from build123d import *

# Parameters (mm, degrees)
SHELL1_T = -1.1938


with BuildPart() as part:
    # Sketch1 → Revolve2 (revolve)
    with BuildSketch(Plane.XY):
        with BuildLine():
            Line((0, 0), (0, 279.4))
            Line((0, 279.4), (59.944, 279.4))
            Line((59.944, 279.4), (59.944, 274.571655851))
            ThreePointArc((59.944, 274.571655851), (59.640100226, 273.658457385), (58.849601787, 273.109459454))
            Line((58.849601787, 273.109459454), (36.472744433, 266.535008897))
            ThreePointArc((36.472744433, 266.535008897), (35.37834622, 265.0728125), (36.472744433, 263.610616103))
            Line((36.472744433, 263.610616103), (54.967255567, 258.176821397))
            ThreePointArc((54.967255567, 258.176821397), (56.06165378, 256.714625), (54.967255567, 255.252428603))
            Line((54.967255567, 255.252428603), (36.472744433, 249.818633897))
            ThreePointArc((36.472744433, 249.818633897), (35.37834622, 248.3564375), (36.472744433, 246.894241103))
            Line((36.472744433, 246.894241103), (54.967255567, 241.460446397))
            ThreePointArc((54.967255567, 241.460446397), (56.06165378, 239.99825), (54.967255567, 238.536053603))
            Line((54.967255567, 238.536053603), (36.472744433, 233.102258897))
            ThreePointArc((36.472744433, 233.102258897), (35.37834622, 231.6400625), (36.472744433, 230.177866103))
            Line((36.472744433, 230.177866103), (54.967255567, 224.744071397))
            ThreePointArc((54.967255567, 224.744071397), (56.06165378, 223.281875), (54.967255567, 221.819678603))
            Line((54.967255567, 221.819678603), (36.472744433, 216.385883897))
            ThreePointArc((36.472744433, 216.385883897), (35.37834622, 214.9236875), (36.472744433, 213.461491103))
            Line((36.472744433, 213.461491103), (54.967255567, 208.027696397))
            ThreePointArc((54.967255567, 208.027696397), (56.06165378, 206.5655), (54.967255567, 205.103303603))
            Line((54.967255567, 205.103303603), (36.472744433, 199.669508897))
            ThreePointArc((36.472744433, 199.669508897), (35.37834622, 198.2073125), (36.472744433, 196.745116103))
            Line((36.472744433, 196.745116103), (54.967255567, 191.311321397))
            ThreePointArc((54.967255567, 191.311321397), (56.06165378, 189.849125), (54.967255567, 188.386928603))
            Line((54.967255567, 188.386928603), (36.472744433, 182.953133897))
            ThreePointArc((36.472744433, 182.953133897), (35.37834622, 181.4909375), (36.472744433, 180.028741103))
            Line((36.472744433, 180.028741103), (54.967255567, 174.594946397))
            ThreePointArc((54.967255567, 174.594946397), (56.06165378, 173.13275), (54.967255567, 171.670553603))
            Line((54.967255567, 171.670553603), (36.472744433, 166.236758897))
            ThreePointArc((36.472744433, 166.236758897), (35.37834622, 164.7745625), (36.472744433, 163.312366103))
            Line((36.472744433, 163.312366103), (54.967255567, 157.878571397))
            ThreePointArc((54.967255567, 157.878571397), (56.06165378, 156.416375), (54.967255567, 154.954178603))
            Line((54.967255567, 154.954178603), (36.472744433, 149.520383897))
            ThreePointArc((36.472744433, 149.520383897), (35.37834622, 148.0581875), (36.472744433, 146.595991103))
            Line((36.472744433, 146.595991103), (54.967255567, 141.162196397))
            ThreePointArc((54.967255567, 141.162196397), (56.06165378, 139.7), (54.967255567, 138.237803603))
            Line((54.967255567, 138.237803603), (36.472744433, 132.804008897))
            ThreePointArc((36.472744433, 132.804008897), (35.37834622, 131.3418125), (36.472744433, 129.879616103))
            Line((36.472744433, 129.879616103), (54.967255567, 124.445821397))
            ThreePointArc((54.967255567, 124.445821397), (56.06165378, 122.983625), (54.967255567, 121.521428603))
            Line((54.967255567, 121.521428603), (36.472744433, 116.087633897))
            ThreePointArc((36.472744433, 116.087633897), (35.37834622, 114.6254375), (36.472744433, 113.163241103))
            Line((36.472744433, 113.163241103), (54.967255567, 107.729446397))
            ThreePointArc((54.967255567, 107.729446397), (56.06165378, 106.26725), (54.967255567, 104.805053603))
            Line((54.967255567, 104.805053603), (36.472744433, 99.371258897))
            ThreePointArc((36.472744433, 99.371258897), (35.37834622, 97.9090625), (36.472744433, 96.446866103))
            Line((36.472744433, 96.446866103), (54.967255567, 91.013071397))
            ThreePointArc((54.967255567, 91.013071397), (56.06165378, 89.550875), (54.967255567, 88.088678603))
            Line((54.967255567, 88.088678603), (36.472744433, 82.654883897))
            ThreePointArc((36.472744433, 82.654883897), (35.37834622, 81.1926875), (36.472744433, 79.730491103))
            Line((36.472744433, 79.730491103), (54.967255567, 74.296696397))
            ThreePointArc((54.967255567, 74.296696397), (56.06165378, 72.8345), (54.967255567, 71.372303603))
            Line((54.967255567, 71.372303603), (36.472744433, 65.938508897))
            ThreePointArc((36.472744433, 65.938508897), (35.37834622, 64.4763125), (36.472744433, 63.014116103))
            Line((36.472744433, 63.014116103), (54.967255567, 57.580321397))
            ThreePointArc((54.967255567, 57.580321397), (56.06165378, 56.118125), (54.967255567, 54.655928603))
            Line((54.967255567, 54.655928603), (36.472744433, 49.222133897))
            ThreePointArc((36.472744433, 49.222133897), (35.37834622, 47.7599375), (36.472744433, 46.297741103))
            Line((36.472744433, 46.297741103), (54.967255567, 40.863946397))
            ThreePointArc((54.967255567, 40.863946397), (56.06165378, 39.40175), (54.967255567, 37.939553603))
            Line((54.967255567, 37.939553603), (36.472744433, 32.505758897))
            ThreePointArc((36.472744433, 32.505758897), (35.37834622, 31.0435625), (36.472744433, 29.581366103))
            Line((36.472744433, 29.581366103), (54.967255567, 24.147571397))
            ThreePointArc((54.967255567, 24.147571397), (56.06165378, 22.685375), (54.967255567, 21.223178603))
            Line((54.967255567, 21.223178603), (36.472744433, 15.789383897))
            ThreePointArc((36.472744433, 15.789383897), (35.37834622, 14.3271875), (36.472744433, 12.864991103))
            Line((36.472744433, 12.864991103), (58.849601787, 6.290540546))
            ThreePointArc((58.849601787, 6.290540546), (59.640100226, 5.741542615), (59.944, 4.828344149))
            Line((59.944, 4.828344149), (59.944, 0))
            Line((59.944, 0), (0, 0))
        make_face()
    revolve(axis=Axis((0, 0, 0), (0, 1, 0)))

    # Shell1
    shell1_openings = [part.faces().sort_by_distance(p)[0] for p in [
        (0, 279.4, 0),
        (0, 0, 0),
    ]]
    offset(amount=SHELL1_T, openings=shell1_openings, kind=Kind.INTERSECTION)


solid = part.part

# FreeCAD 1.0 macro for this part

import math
import FreeCAD as App
import Part
import Sketcher
Q = App.Units.Quantity


def faces_at(feature, points):
    """Names of the faces that lie closest to the given points."""
    faces = feature.Shape.Faces
    near = lambda p: min(range(len(faces)), key=lambda i: faces[i].distToShape(Part.Vertex(*p))[0])
    return sorted({f"Face{near(p) + 1}" for p in points})

doc = App.newDocument("Part")
body = doc.addObject("PartDesign::Body", "Body")

sketch1 = doc.addObject("Sketcher::SketchObject", "Sketch")
body.addObject(sketch1)
sketch1.AttachmentSupport = (doc.XY_Plane, [""])
sketch1.MapMode = "FlatFace"
sketch1.addGeometry(Part.LineSegment(App.Vector(0, 279.4, 0), App.Vector(0, 0, 0)), False)
sketch1.addGeometry(Part.LineSegment(App.Vector(0, 0, 0), App.Vector(59.9, 0, 0)), False)
sketch1.addGeometry(Part.LineSegment(App.Vector(59.9, 0, 0), App.Vector(59.9, 4.8, 0)), False)
sketch1.addGeometry(Part.ArcOfCircle(Part.Circle(App.Vector(58.4, 4.8, 0), App.Vector(0, 0, 1), 1.5), math.radians(0), math.radians(74)), False)
sketch1.addGeometry(Part.LineSegment(App.Vector(58.8, 6.3, 0), App.Vector(36.5, 12.9, 0)), False)
sketch1.addGeometry(Part.ArcOfCircle(Part.Circle(App.Vector(36.9, 14.3, 0), App.Vector(0, 0, 1), 1.5), math.radians(106), math.radians(254)), False)
sketch1.addGeometry(Part.LineSegment(App.Vector(36.5, 15.8, 0), App.Vector(55, 21.2, 0)), False)
sketch1.addGeometry(Part.ArcOfCircle(Part.Circle(App.Vector(54.5, 22.7, 0), App.Vector(0, 0, 1), 1.5), math.radians(-74), math.radians(74)), False)
sketch1.addGeometry(Part.LineSegment(App.Vector(55, 24.1, 0), App.Vector(36.5, 29.6, 0)), False)
sketch1.addGeometry(Part.ArcOfCircle(Part.Circle(App.Vector(36.9, 31, 0), App.Vector(0, 0, 1), 1.5), math.radians(106), math.radians(254)), False)
sketch1.addGeometry(Part.LineSegment(App.Vector(36.5, 32.5, 0), App.Vector(55, 37.9, 0)), False)
sketch1.addGeometry(Part.ArcOfCircle(Part.Circle(App.Vector(54.5, 39.4, 0), App.Vector(0, 0, 1), 1.5), math.radians(-74), math.radians(74)), False)
sketch1.addGeometry(Part.LineSegment(App.Vector(55, 40.9, 0), App.Vector(36.5, 46.3, 0)), False)
sketch1.addGeometry(Part.ArcOfCircle(Part.Circle(App.Vector(36.9, 47.8, 0), App.Vector(0, 0, 1), 1.5), math.radians(106), math.radians(254)), False)
sketch1.addGeometry(Part.LineSegment(App.Vector(36.5, 49.2, 0), App.Vector(55, 54.7, 0)), False)
sketch1.addGeometry(Part.ArcOfCircle(Part.Circle(App.Vector(54.5, 56.1, 0), App.Vector(0, 0, 1), 1.5), math.radians(-74), math.radians(74)), False)
sketch1.addGeometry(Part.LineSegment(App.Vector(55, 57.6, 0), App.Vector(36.5, 63, 0)), False)
sketch1.addGeometry(Part.ArcOfCircle(Part.Circle(App.Vector(36.9, 64.5, 0), App.Vector(0, 0, 1), 1.5), math.radians(106), math.radians(254)), False)
sketch1.addGeometry(Part.LineSegment(App.Vector(36.5, 65.9, 0), App.Vector(55, 71.4, 0)), False)
sketch1.addGeometry(Part.ArcOfCircle(Part.Circle(App.Vector(54.5, 72.8, 0), App.Vector(0, 0, 1), 1.5), math.radians(-74), math.radians(74)), False)
sketch1.addGeometry(Part.LineSegment(App.Vector(55, 74.3, 0), App.Vector(36.5, 79.7, 0)), False)
sketch1.addGeometry(Part.ArcOfCircle(Part.Circle(App.Vector(36.9, 81.2, 0), App.Vector(0, 0, 1), 1.5), math.radians(106), math.radians(254)), False)
sketch1.addGeometry(Part.LineSegment(App.Vector(36.5, 82.7, 0), App.Vector(55, 88.1, 0)), False)
sketch1.addGeometry(Part.ArcOfCircle(Part.Circle(App.Vector(54.5, 89.6, 0), App.Vector(0, 0, 1), 1.5), math.radians(-74), math.radians(74)), False)
sketch1.addGeometry(Part.LineSegment(App.Vector(55, 91, 0), App.Vector(36.5, 96.4, 0)), False)
sketch1.addGeometry(Part.ArcOfCircle(Part.Circle(App.Vector(36.9, 97.9, 0), App.Vector(0, 0, 1), 1.5), math.radians(106), math.radians(254)), False)
sketch1.addGeometry(Part.LineSegment(App.Vector(36.5, 99.4, 0), App.Vector(55, 104.8, 0)), False)
sketch1.addGeometry(Part.ArcOfCircle(Part.Circle(App.Vector(54.5, 106.3, 0), App.Vector(0, 0, 1), 1.5), math.radians(-74), math.radians(74)), False)
sketch1.addGeometry(Part.LineSegment(App.Vector(55, 107.7, 0), App.Vector(36.5, 113.2, 0)), False)
sketch1.addGeometry(Part.ArcOfCircle(Part.Circle(App.Vector(36.9, 114.6, 0), App.Vector(0, 0, 1), 1.5), math.radians(106), math.radians(254)), False)
sketch1.addGeometry(Part.LineSegment(App.Vector(36.5, 116.1, 0), App.Vector(55, 121.5, 0)), False)
sketch1.addGeometry(Part.ArcOfCircle(Part.Circle(App.Vector(54.5, 123, 0), App.Vector(0, 0, 1), 1.5), math.radians(-74), math.radians(74)), False)
sketch1.addGeometry(Part.LineSegment(App.Vector(55, 124.4, 0), App.Vector(36.5, 129.9, 0)), False)
sketch1.addGeometry(Part.ArcOfCircle(Part.Circle(App.Vector(36.9, 131.3, 0), App.Vector(0, 0, 1), 1.5), math.radians(106), math.radians(254)), False)
sketch1.addGeometry(Part.LineSegment(App.Vector(36.5, 132.8, 0), App.Vector(55, 138.2, 0)), False)
sketch1.addGeometry(Part.ArcOfCircle(Part.Circle(App.Vector(54.5, 139.7, 0), App.Vector(0, 0, 1), 1.5), math.radians(-74), math.radians(74)), False)
sketch1.addGeometry(Part.LineSegment(App.Vector(55, 141.2, 0), App.Vector(36.5, 146.6, 0)), False)
sketch1.addGeometry(Part.ArcOfCircle(Part.Circle(App.Vector(36.9, 148.1, 0), App.Vector(0, 0, 1), 1.5), math.radians(106), math.radians(254)), False)
sketch1.addGeometry(Part.LineSegment(App.Vector(36.5, 149.5, 0), App.Vector(55, 155, 0)), False)
sketch1.addGeometry(Part.ArcOfCircle(Part.Circle(App.Vector(54.5, 156.4, 0), App.Vector(0, 0, 1), 1.5), math.radians(-74), math.radians(74)), False)
sketch1.addGeometry(Part.LineSegment(App.Vector(55, 157.9, 0), App.Vector(36.5, 163.3, 0)), False)
sketch1.addGeometry(Part.ArcOfCircle(Part.Circle(App.Vector(36.9, 164.8, 0), App.Vector(0, 0, 1), 1.5), math.radians(106), math.radians(254)), False)
sketch1.addGeometry(Part.LineSegment(App.Vector(36.5, 166.2, 0), App.Vector(55, 171.7, 0)), False)
sketch1.addGeometry(Part.ArcOfCircle(Part.Circle(App.Vector(54.5, 173.1, 0), App.Vector(0, 0, 1), 1.5), math.radians(-74), math.radians(74)), False)
sketch1.addGeometry(Part.LineSegment(App.Vector(55, 174.6, 0), App.Vector(36.5, 180, 0)), False)
sketch1.addGeometry(Part.ArcOfCircle(Part.Circle(App.Vector(36.9, 181.5, 0), App.Vector(0, 0, 1), 1.5), math.radians(106), math.radians(254)), False)
sketch1.addGeometry(Part.LineSegment(App.Vector(36.5, 183, 0), App.Vector(55, 188.4, 0)), False)
sketch1.addGeometry(Part.ArcOfCircle(Part.Circle(App.Vector(54.5, 189.8, 0), App.Vector(0, 0, 1), 1.5), math.radians(-74), math.radians(74)), False)
sketch1.addGeometry(Part.LineSegment(App.Vector(55, 191.3, 0), App.Vector(36.5, 196.7, 0)), False)
sketch1.addGeometry(Part.ArcOfCircle(Part.Circle(App.Vector(36.9, 198.2, 0), App.Vector(0, 0, 1), 1.5), math.radians(106), math.radians(254)), False)
sketch1.addGeometry(Part.LineSegment(App.Vector(36.5, 199.7, 0), App.Vector(55, 205.1, 0)), False)
sketch1.addGeometry(Part.ArcOfCircle(Part.Circle(App.Vector(54.5, 206.6, 0), App.Vector(0, 0, 1), 1.5), math.radians(-74), math.radians(74)), False)
sketch1.addGeometry(Part.LineSegment(App.Vector(55, 208, 0), App.Vector(36.5, 213.5, 0)), False)
sketch1.addGeometry(Part.ArcOfCircle(Part.Circle(App.Vector(36.9, 214.9, 0), App.Vector(0, 0, 1), 1.5), math.radians(106), math.radians(254)), False)
sketch1.addGeometry(Part.LineSegment(App.Vector(36.5, 216.4, 0), App.Vector(55, 221.8, 0)), False)
sketch1.addGeometry(Part.ArcOfCircle(Part.Circle(App.Vector(54.5, 223.3, 0), App.Vector(0, 0, 1), 1.5), math.radians(-74), math.radians(74)), False)
sketch1.addGeometry(Part.LineSegment(App.Vector(55, 224.7, 0), App.Vector(36.5, 230.2, 0)), False)
sketch1.addGeometry(Part.ArcOfCircle(Part.Circle(App.Vector(36.9, 231.6, 0), App.Vector(0, 0, 1), 1.5), math.radians(106), math.radians(254)), False)
sketch1.addGeometry(Part.LineSegment(App.Vector(36.5, 233.1, 0), App.Vector(55, 238.5, 0)), False)
sketch1.addGeometry(Part.ArcOfCircle(Part.Circle(App.Vector(54.5, 240, 0), App.Vector(0, 0, 1), 1.5), math.radians(-74), math.radians(74)), False)
sketch1.addGeometry(Part.LineSegment(App.Vector(55, 241.5, 0), App.Vector(36.5, 246.9, 0)), False)
sketch1.addGeometry(Part.ArcOfCircle(Part.Circle(App.Vector(36.9, 248.4, 0), App.Vector(0, 0, 1), 1.5), math.radians(106), math.radians(254)), False)
sketch1.addGeometry(Part.LineSegment(App.Vector(36.5, 249.8, 0), App.Vector(55, 255.3, 0)), False)
sketch1.addGeometry(Part.ArcOfCircle(Part.Circle(App.Vector(54.5, 256.7, 0), App.Vector(0, 0, 1), 1.5), math.radians(-74), math.radians(74)), False)
sketch1.addGeometry(Part.LineSegment(App.Vector(55, 258.2, 0), App.Vector(36.5, 263.6, 0)), False)
sketch1.addGeometry(Part.ArcOfCircle(Part.Circle(App.Vector(36.9, 265.1, 0), App.Vector(0, 0, 1), 1.5), math.radians(106), math.radians(254)), False)
sketch1.addGeometry(Part.LineSegment(App.Vector(36.5, 266.5, 0), App.Vector(58.8, 273.1, 0)), False)
sketch1.addGeometry(Part.ArcOfCircle(Part.Circle(App.Vector(58.4, 274.6, 0), App.Vector(0, 0, 1), 1.5), math.radians(-74), math.radians(0)), False)
sketch1.addGeometry(Part.LineSegment(App.Vector(59.9, 274.6, 0), App.Vector(59.9, 279.4, 0)), False)
sketch1.addGeometry(Part.LineSegment(App.Vector(59.9, 279.4, 0), App.Vector(0, 279.4, 0)), False)
sketch1.addConstraint(Sketcher.Constraint("Coincident", 0, 2, 1, 1))
sketch1.addConstraint(Sketcher.Constraint("Coincident", 1, 2, 2, 1))
sketch1.addConstraint(Sketcher.Constraint("Tangent", 2, 2, 3, 1))
sketch1.addConstraint(Sketcher.Constraint("Tangent", 3, 2, 4, 1))
sketch1.addConstraint(Sketcher.Constraint("Tangent", 4, 2, 5, 2))
sketch1.addConstraint(Sketcher.Constraint("Tangent", 5, 1, 6, 1))
sketch1.addConstraint(Sketcher.Constraint("Tangent", 6, 2, 7, 1))
sketch1.addConstraint(Sketcher.Constraint("Tangent", 7, 2, 8, 1))
sketch1.addConstraint(Sketcher.Constraint("Tangent", 8, 2, 9, 2))
sketch1.addConstraint(Sketcher.Constraint("Tangent", 9, 1, 10, 1))
sketch1.addConstraint(Sketcher.Constraint("Tangent", 10, 2, 11, 1))
sketch1.addConstraint(Sketcher.Constraint("Tangent", 11, 2, 12, 1))
sketch1.addConstraint(Sketcher.Constraint("Tangent", 12, 2, 13, 2))
sketch1.addConstraint(Sketcher.Constraint("Tangent", 13, 1, 14, 1))
sketch1.addConstraint(Sketcher.Constraint("Tangent", 14, 2, 15, 1))
sketch1.addConstraint(Sketcher.Constraint("Tangent", 15, 2, 16, 1))
sketch1.addConstraint(Sketcher.Constraint("Tangent", 16, 2, 17, 2))
sketch1.addConstraint(Sketcher.Constraint("Tangent", 17, 1, 18, 1))
sketch1.addConstraint(Sketcher.Constraint("Tangent", 18, 2, 19, 1))
sketch1.addConstraint(Sketcher.Constraint("Tangent", 19, 2, 20, 1))
sketch1.addConstraint(Sketcher.Constraint("Tangent", 20, 2, 21, 2))
sketch1.addConstraint(Sketcher.Constraint("Tangent", 21, 1, 22, 1))
sketch1.addConstraint(Sketcher.Constraint("Tangent", 22, 2, 23, 1))
sketch1.addConstraint(Sketcher.Constraint("Tangent", 23, 2, 24, 1))
sketch1.addConstraint(Sketcher.Constraint("Tangent", 24, 2, 25, 2))
sketch1.addConstraint(Sketcher.Constraint("Tangent", 25, 1, 26, 1))
sketch1.addConstraint(Sketcher.Constraint("Tangent", 26, 2, 27, 1))
sketch1.addConstraint(Sketcher.Constraint("Tangent", 27, 2, 28, 1))
sketch1.addConstraint(Sketcher.Constraint("Tangent", 28, 2, 29, 2))
sketch1.addConstraint(Sketcher.Constraint("Tangent", 29, 1, 30, 1))
sketch1.addConstraint(Sketcher.Constraint("Tangent", 30, 2, 31, 1))
sketch1.addConstraint(Sketcher.Constraint("Tangent", 31, 2, 32, 1))
sketch1.addConstraint(Sketcher.Constraint("Tangent", 32, 2, 33, 2))
sketch1.addConstraint(Sketcher.Constraint("Tangent", 33, 1, 34, 1))
sketch1.addConstraint(Sketcher.Constraint("Tangent", 34, 2, 35, 1))
sketch1.addConstraint(Sketcher.Constraint("Tangent", 35, 2, 36, 1))
sketch1.addConstraint(Sketcher.Constraint("Tangent", 36, 2, 37, 2))
sketch1.addConstraint(Sketcher.Constraint("Tangent", 37, 1, 38, 1))
sketch1.addConstraint(Sketcher.Constraint("Tangent", 38, 2, 39, 1))
sketch1.addConstraint(Sketcher.Constraint("Tangent", 39, 2, 40, 1))
sketch1.addConstraint(Sketcher.Constraint("Tangent", 40, 2, 41, 2))
sketch1.addConstraint(Sketcher.Constraint("Tangent", 41, 1, 42, 1))
sketch1.addConstraint(Sketcher.Constraint("Tangent", 42, 2, 43, 1))
sketch1.addConstraint(Sketcher.Constraint("Tangent", 43, 2, 44, 1))
sketch1.addConstraint(Sketcher.Constraint("Tangent", 44, 2, 45, 2))
sketch1.addConstraint(Sketcher.Constraint("Tangent", 45, 1, 46, 1))
sketch1.addConstraint(Sketcher.Constraint("Tangent", 46, 2, 47, 1))
sketch1.addConstraint(Sketcher.Constraint("Tangent", 47, 2, 48, 1))
sketch1.addConstraint(Sketcher.Constraint("Tangent", 48, 2, 49, 2))
sketch1.addConstraint(Sketcher.Constraint("Tangent", 49, 1, 50, 1))
sketch1.addConstraint(Sketcher.Constraint("Tangent", 50, 2, 51, 1))
sketch1.addConstraint(Sketcher.Constraint("Tangent", 51, 2, 52, 1))
sketch1.addConstraint(Sketcher.Constraint("Tangent", 52, 2, 53, 2))
sketch1.addConstraint(Sketcher.Constraint("Tangent", 53, 1, 54, 1))
sketch1.addConstraint(Sketcher.Constraint("Tangent", 54, 2, 55, 1))
sketch1.addConstraint(Sketcher.Constraint("Tangent", 55, 2, 56, 1))
sketch1.addConstraint(Sketcher.Constraint("Tangent", 56, 2, 57, 2))
sketch1.addConstraint(Sketcher.Constraint("Tangent", 57, 1, 58, 1))
sketch1.addConstraint(Sketcher.Constraint("Tangent", 58, 2, 59, 1))
sketch1.addConstraint(Sketcher.Constraint("Tangent", 59, 2, 60, 1))
sketch1.addConstraint(Sketcher.Constraint("Tangent", 60, 2, 61, 2))
sketch1.addConstraint(Sketcher.Constraint("Tangent", 61, 1, 62, 1))
sketch1.addConstraint(Sketcher.Constraint("Tangent", 62, 2, 63, 1))
sketch1.addConstraint(Sketcher.Constraint("Tangent", 63, 2, 64, 1))
sketch1.addConstraint(Sketcher.Constraint("Tangent", 64, 2, 65, 2))
sketch1.addConstraint(Sketcher.Constraint("Tangent", 65, 1, 66, 1))
sketch1.addConstraint(Sketcher.Constraint("Tangent", 66, 2, 67, 1))
sketch1.addConstraint(Sketcher.Constraint("Tangent", 67, 2, 68, 1))
sketch1.addConstraint(Sketcher.Constraint("Coincident", 68, 2, 69, 1))
sketch1.addConstraint(Sketcher.Constraint("Coincident", 69, 2, 0, 1))
sketch1.addConstraint(Sketcher.Constraint("Vertical", 0))
sketch1.addConstraint(Sketcher.Constraint("Horizontal", 1))
sketch1.addConstraint(Sketcher.Constraint("Vertical", 2))
sketch1.addConstraint(Sketcher.Constraint("Vertical", 68))
sketch1.addConstraint(Sketcher.Constraint("Horizontal", 69))
sketch1.addConstraint(Sketcher.Constraint("Coincident", 0, 2, -1, 1))
sketch1.addConstraint(Sketcher.Constraint("Equal", 3, 5))
sketch1.addConstraint(Sketcher.Constraint("Equal", 5, 7))
sketch1.addConstraint(Sketcher.Constraint("Equal", 7, 9))
sketch1.addConstraint(Sketcher.Constraint("Equal", 9, 11))
sketch1.addConstraint(Sketcher.Constraint("Equal", 11, 13))
sketch1.addConstraint(Sketcher.Constraint("Equal", 13, 15))
sketch1.addConstraint(Sketcher.Constraint("Equal", 15, 17))
sketch1.addConstraint(Sketcher.Constraint("Equal", 17, 19))
sketch1.addConstraint(Sketcher.Constraint("Equal", 19, 21))
sketch1.addConstraint(Sketcher.Constraint("Equal", 21, 23))
sketch1.addConstraint(Sketcher.Constraint("Equal", 23, 25))
sketch1.addConstraint(Sketcher.Constraint("Equal", 25, 27))
sketch1.addConstraint(Sketcher.Constraint("Equal", 27, 29))
sketch1.addConstraint(Sketcher.Constraint("Equal", 29, 31))
sketch1.addConstraint(Sketcher.Constraint("Equal", 31, 33))
sketch1.addConstraint(Sketcher.Constraint("Equal", 33, 35))
sketch1.addConstraint(Sketcher.Constraint("Equal", 35, 37))
sketch1.addConstraint(Sketcher.Constraint("Equal", 37, 39))
sketch1.addConstraint(Sketcher.Constraint("Equal", 39, 41))
sketch1.addConstraint(Sketcher.Constraint("Equal", 41, 43))
sketch1.addConstraint(Sketcher.Constraint("Equal", 43, 45))
sketch1.addConstraint(Sketcher.Constraint("Equal", 45, 47))
sketch1.addConstraint(Sketcher.Constraint("Equal", 47, 49))
sketch1.addConstraint(Sketcher.Constraint("Equal", 49, 51))
sketch1.addConstraint(Sketcher.Constraint("Equal", 51, 53))
sketch1.addConstraint(Sketcher.Constraint("Equal", 53, 55))
sketch1.addConstraint(Sketcher.Constraint("Equal", 55, 57))
sketch1.addConstraint(Sketcher.Constraint("Equal", 57, 59))
sketch1.addConstraint(Sketcher.Constraint("Equal", 59, 61))
sketch1.addConstraint(Sketcher.Constraint("Equal", 61, 63))
sketch1.addConstraint(Sketcher.Constraint("Equal", 63, 65))
sketch1.addConstraint(Sketcher.Constraint("Equal", 65, 67))
sketch1.addConstraint(Sketcher.Constraint("Parallel", 4, 8))
sketch1.addConstraint(Sketcher.Constraint("Parallel", 6, 10))
sketch1.addConstraint(Sketcher.Constraint("Parallel", 8, 12))
sketch1.addConstraint(Sketcher.Constraint("Parallel", 10, 14))
sketch1.addConstraint(Sketcher.Constraint("Parallel", 12, 16))
sketch1.addConstraint(Sketcher.Constraint("Parallel", 14, 18))
sketch1.addConstraint(Sketcher.Constraint("Parallel", 16, 20))
sketch1.addConstraint(Sketcher.Constraint("Parallel", 18, 22))
sketch1.addConstraint(Sketcher.Constraint("Parallel", 20, 24))
sketch1.addConstraint(Sketcher.Constraint("Parallel", 22, 26))
sketch1.addConstraint(Sketcher.Constraint("Parallel", 24, 28))
sketch1.addConstraint(Sketcher.Constraint("Parallel", 26, 30))
sketch1.addConstraint(Sketcher.Constraint("Parallel", 28, 32))
sketch1.addConstraint(Sketcher.Constraint("Parallel", 30, 34))
sketch1.addConstraint(Sketcher.Constraint("Parallel", 32, 36))
sketch1.addConstraint(Sketcher.Constraint("Parallel", 34, 38))
sketch1.addConstraint(Sketcher.Constraint("Parallel", 36, 40))
sketch1.addConstraint(Sketcher.Constraint("Parallel", 38, 42))
sketch1.addConstraint(Sketcher.Constraint("Parallel", 40, 44))
sketch1.addConstraint(Sketcher.Constraint("Parallel", 42, 46))
sketch1.addConstraint(Sketcher.Constraint("Parallel", 44, 48))
sketch1.addConstraint(Sketcher.Constraint("Parallel", 46, 50))
sketch1.addConstraint(Sketcher.Constraint("Parallel", 48, 52))
sketch1.addConstraint(Sketcher.Constraint("Parallel", 50, 54))
sketch1.addConstraint(Sketcher.Constraint("Parallel", 52, 56))
sketch1.addConstraint(Sketcher.Constraint("Parallel", 54, 58))
sketch1.addConstraint(Sketcher.Constraint("Parallel", 56, 60))
sketch1.addConstraint(Sketcher.Constraint("Parallel", 58, 62))
sketch1.addConstraint(Sketcher.Constraint("Parallel", 60, 64))
sketch1.addConstraint(Sketcher.Constraint("Parallel", 62, 66))
sketch1.addConstraint(Sketcher.Constraint("Vertical", 5, 3, 9, 3))
sketch1.addConstraint(Sketcher.Constraint("Vertical", 7, 3, 11, 3))
sketch1.addConstraint(Sketcher.Constraint("Vertical", 9, 3, 13, 3))
sketch1.addConstraint(Sketcher.Constraint("Vertical", 11, 3, 15, 3))
sketch1.addConstraint(Sketcher.Constraint("Vertical", 13, 3, 17, 3))
sketch1.addConstraint(Sketcher.Constraint("Vertical", 15, 3, 19, 3))
sketch1.addConstraint(Sketcher.Constraint("Vertical", 17, 3, 21, 3))
sketch1.addConstraint(Sketcher.Constraint("Vertical", 19, 3, 23, 3))
sketch1.addConstraint(Sketcher.Constraint("Vertical", 21, 3, 25, 3))
sketch1.addConstraint(Sketcher.Constraint("Vertical", 23, 3, 27, 3))
sketch1.addConstraint(Sketcher.Constraint("Vertical", 25, 3, 29, 3))
sketch1.addConstraint(Sketcher.Constraint("Vertical", 27, 3, 31, 3))
sketch1.addConstraint(Sketcher.Constraint("Vertical", 29, 3, 33, 3))
sketch1.addConstraint(Sketcher.Constraint("Vertical", 31, 3, 35, 3))
sketch1.addConstraint(Sketcher.Constraint("Vertical", 33, 3, 37, 3))
sketch1.addConstraint(Sketcher.Constraint("Vertical", 35, 3, 39, 3))
sketch1.addConstraint(Sketcher.Constraint("Vertical", 37, 3, 41, 3))
sketch1.addConstraint(Sketcher.Constraint("Vertical", 39, 3, 43, 3))
sketch1.addConstraint(Sketcher.Constraint("Vertical", 41, 3, 45, 3))
sketch1.addConstraint(Sketcher.Constraint("Vertical", 43, 3, 47, 3))
sketch1.addConstraint(Sketcher.Constraint("Vertical", 45, 3, 49, 3))
sketch1.addConstraint(Sketcher.Constraint("Vertical", 47, 3, 51, 3))
sketch1.addConstraint(Sketcher.Constraint("Vertical", 49, 3, 53, 3))
sketch1.addConstraint(Sketcher.Constraint("Vertical", 51, 3, 55, 3))
sketch1.addConstraint(Sketcher.Constraint("Vertical", 53, 3, 57, 3))
sketch1.addConstraint(Sketcher.Constraint("Vertical", 55, 3, 59, 3))
sketch1.addConstraint(Sketcher.Constraint("Vertical", 57, 3, 61, 3))
sketch1.addConstraint(Sketcher.Constraint("Vertical", 59, 3, 63, 3))
sketch1.addConstraint(Sketcher.Constraint("Vertical", 61, 3, 65, 3))
sketch1.addConstraint(Sketcher.Constraint("Vertical", 3, 3, 67, 3))
sketch1.addConstraint(Sketcher.Constraint("Vertical", 4, 2, 5, 1))
sketch1.addConstraint(Sketcher.Constraint("Equal", 2, 68))
sketch1.addConstraint(Sketcher.Constraint("DistanceY", 0, 2, 0, 1, Q("11 in")))
sketch1.addConstraint(Sketcher.Constraint("Radius", 3, Q("0.06 in")))
sketch1.addConstraint(Sketcher.Constraint("DistanceX", 1, 1, 1, 2, Q("2.36 in")))
sketch1.addConstraint(Sketcher.Constraint("DistanceY", -1, 1, 19, 3, Q("2.8675 in")))
sketch1.addConstraint(Sketcher.Constraint("DistanceX", -1, 1, 3, 2, 58.849602))
sketch1.addConstraint(Sketcher.Constraint("DistanceY", 2, 1, 2, 2, 4.828344))
revolution = doc.addObject("PartDesign::Revolution", "Revolution")
body.addObject(revolution)
revolution.Profile = sketch1
revolution.ReferenceAxis = (sketch1, ["V_Axis"])
revolution.Angle = 360
doc.recompute()

thickness = doc.addObject("PartDesign::Thickness", "Thickness")
body.addObject(thickness)
thickness.Base = (revolution, faces_at(revolution, [(0, 279.4, 0), (0, 0, 0)]))
thickness.Value = Q("0.047 in")
thickness.Reversed = True
thickness.Join = "Intersection"

doc.recompute()
